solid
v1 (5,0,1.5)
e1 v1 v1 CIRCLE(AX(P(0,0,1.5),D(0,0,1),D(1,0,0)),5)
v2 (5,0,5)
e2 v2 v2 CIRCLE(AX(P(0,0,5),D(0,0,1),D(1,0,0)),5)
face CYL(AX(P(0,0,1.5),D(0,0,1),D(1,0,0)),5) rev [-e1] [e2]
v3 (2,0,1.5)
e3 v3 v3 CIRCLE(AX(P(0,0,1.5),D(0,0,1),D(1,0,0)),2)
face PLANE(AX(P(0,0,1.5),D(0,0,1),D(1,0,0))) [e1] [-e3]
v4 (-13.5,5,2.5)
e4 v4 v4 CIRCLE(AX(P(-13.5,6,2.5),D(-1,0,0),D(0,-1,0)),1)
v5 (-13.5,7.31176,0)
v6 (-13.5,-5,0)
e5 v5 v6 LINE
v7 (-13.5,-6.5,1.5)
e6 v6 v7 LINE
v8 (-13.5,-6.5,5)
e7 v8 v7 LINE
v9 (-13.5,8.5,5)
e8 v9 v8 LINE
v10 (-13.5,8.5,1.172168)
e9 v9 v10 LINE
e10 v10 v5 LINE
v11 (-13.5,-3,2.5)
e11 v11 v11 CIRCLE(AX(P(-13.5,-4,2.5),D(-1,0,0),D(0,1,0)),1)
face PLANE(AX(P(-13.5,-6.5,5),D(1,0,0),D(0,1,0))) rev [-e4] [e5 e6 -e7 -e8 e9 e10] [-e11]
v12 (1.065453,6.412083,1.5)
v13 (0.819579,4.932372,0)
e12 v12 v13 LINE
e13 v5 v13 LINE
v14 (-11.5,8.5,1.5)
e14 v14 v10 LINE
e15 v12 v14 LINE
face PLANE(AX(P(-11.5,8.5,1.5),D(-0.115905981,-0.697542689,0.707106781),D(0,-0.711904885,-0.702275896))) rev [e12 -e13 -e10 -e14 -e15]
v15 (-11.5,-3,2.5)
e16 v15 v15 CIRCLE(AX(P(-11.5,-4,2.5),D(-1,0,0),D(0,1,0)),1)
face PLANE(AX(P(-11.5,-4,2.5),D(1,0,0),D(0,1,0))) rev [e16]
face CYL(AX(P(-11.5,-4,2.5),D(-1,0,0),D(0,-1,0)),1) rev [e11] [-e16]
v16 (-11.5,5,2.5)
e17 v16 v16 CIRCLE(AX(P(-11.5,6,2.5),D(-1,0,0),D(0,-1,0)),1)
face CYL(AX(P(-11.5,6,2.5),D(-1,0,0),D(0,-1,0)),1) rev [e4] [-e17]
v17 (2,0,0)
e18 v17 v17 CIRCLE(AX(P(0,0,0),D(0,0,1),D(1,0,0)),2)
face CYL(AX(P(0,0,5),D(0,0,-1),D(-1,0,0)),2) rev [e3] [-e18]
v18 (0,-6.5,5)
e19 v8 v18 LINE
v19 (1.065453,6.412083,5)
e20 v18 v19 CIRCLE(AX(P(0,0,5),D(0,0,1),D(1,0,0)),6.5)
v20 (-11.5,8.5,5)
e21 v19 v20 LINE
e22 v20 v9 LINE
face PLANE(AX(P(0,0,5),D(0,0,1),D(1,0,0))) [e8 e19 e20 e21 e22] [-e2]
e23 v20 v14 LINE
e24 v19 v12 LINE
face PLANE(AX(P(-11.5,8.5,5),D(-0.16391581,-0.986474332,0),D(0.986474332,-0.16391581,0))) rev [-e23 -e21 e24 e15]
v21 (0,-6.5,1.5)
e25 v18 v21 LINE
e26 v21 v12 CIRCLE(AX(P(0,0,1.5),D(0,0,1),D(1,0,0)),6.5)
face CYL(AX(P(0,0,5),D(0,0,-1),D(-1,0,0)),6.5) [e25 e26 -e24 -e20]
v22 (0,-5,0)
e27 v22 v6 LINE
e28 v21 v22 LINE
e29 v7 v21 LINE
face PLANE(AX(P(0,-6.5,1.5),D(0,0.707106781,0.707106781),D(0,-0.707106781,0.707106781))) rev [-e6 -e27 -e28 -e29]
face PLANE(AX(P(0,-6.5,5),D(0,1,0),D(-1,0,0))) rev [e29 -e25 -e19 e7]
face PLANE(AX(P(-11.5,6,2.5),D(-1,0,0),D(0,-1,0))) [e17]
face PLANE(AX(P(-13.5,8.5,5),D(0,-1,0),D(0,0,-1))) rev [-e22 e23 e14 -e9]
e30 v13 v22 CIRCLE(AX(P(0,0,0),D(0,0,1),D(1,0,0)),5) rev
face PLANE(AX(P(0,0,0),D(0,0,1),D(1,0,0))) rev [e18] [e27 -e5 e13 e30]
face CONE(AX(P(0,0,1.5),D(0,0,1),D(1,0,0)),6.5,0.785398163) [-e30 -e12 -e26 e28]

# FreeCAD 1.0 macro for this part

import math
import FreeCAD as App
import Part
import Sketcher


def edges_at(feature, points):
    """Names of the edges that pass closest to the given points."""
    edges = feature.Shape.Edges
    near = lambda p: min(range(len(edges)), key=lambda i: edges[i].distToShape(Part.Vertex(*p))[0])
    return sorted({f"Edge{near(p) + 1}" for p in points})

doc = App.newDocument("Part")
params = doc.addObject("Spreadsheet::Sheet", "Params")
for row, (alias, value) in enumerate([
    ("sketch1_diameter", "4 mm"),
    ("sketch1_radius", "6.5 mm"),
    ("sketch1_width", "2 mm"),
    ("sketch1_height", "15 mm"),
    ("sketch1_width2", "13.5 mm"),
    ("pad1_length", "5 mm"),
    ("sketch2_diameter", "10 mm"),
    ("pocket1_length", "3.5 mm"),
    ("sketch3_diameter", "2 mm"),
    ("pocket2_length", "2 mm"),
    ("chamfer_size", "1.5 mm"),
], start=1):
    params.set(f"A{row}", alias)
    params.set(f"B{row}", "=" + value)
    params.setAlias(f"B{row}", alias)

body = doc.addObject("PartDesign::Body", "Body")

sketch1 = body.newObject("Sketcher::SketchObject", "Sketch")
sketch1.AttachmentSupport = (doc.getObject("XY_Plane"), [""])
sketch1.MapMode = "FlatFace"
sketch1.addGeometry([
    Part.LineSegment(App.Vector(-13.5, -6.5, 0), App.Vector(0, -6.5, 0)),
    Part.ArcOfCircle(Part.Circle(App.Vector(0, 0, 0), App.Vector(0, 0, 1), 6.5), math.radians(-90), math.radians(80.565743)),
    Part.LineSegment(App.Vector(1.065453, 6.412083, 0), App.Vector(-11.5, 8.5, 0)),
    Part.LineSegment(App.Vector(-11.5, 8.5, 0), App.Vector(-13.5, 8.5, 0)),
    Part.LineSegment(App.Vector(-13.5, 8.5, 0), App.Vector(-13.5, -6.5, 0)),
    Part.Circle(App.Vector(0, 0, 0), App.Vector(0, 0, 1), 2),
], False)
sketch1.addConstraint([
    Sketcher.Constraint("Tangent", 0, 2, 1, 1),
    Sketcher.Constraint("Tangent", 1, 2, 2, 1),
    Sketcher.Constraint("Coincident", 2, 2, 3, 1),
    Sketcher.Constraint("Coincident", 3, 2, 4, 1),
    Sketcher.Constraint("Coincident", 4, 2, 0, 1),
    Sketcher.Constraint("Horizontal", 0),
    Sketcher.Constraint("Horizontal", 3),
    Sketcher.Constraint("Vertical", 4),
    Sketcher.Constraint("Coincident", 1, 3, -1, 1),
    Sketcher.Constraint("Coincident", 5, 3, -1, 1),
    Sketcher.Constraint("Diameter", 5, 4.0),
    Sketcher.Constraint("Radius", 1, 6.5),
    Sketcher.Constraint("DistanceX", 3, 2, 3, 1, 2.0),
    Sketcher.Constraint("DistanceY", 4, 2, 4, 1, 15.0),
    Sketcher.Constraint("DistanceX", 0, 1, 0, 2, 13.5),
])
sketch1.setExpression("Constraints[10]", "Params.sketch1_diameter")
sketch1.setExpression("Constraints[11]", "Params.sketch1_radius")
sketch1.setExpression("Constraints[12]", "Params.sketch1_width")
sketch1.setExpression("Constraints[13]", "Params.sketch1_height")
sketch1.setExpression("Constraints[14]", "Params.sketch1_width2")
pad1 = body.newObject("PartDesign::Pad", "Pad")
pad1.Profile = sketch1
pad1.setExpression("Length", "Params.pad1_length")

sketch2 = body.newObject("Sketcher::SketchObject", "Sketch001")
sketch2.AttachmentSupport = (doc.getObject("XY_Plane"), [""])
sketch2.MapMode = "FlatFace"
sketch2.AttachmentOffset = App.Placement(App.Vector(0, 0, 5), App.Rotation())
sketch2.addGeometry(Part.Circle(App.Vector(0, 0, 0), App.Vector(0, 0, 1), 5), False)
sketch2.addConstraint([
    Sketcher.Constraint("Coincident", 0, 3, -1, 1),
    Sketcher.Constraint("Diameter", 0, 10.0),
])
sketch2.setExpression("Constraints[1]", "Params.sketch2_diameter")
pocket1 = body.newObject("PartDesign::Pocket", "Pocket")
pocket1.Profile = sketch2
pocket1.setExpression("Length", "Params.pocket1_length")

sketch3 = body.newObject("Sketcher::SketchObject", "Sketch002")
sketch3.AttachmentSupport = (doc.getObject("YZ_Plane"), [""])
sketch3.MapMode = "FlatFace"
sketch3.AttachmentOffset = App.Placement(App.Vector(0, 0, -13.5), App.Rotation())
sketch3.addGeometry([
    Part.Circle(App.Vector(6, 2.5, 0), App.Vector(0, 0, 1), 1),
    Part.Circle(App.Vector(-4, 2.5, 0), App.Vector(0, 0, 1), 1),
], False)
sketch3.addConstraint([
    Sketcher.Constraint("Equal", 0, 1),
    Sketcher.Constraint("Horizontal", 0, 3, 1, 3),
    Sketcher.Constraint("Diameter", 0, 2.0),
    Sketcher.Constraint("DistanceX", -1, 1, 0, 3, 6.0),
    Sketcher.Constraint("DistanceX", 1, 3, -1, 1, 4.0),
    Sketcher.Constraint("DistanceY", -1, 1, 0, 3, 2.5),
])
sketch3.setExpression("Constraints[2]", "Params.sketch3_diameter")
pocket2 = body.newObject("PartDesign::Pocket", "Pocket001")
pocket2.Profile = sketch3
pocket2.setExpression("Length", "Params.pocket2_length")
pocket2.Reversed = True
doc.recompute()

chamfer = body.newObject("PartDesign::Chamfer", "Chamfer")
chamfer.Base = (pocket2, edges_at(pocket2, [(-5.217, 7.456, 0), (6.478, -0.535, 0), (-6.75, -6.5, 0)]))
chamfer.setExpression("Size", "Params.chamfer_size")

doc.recompute()
